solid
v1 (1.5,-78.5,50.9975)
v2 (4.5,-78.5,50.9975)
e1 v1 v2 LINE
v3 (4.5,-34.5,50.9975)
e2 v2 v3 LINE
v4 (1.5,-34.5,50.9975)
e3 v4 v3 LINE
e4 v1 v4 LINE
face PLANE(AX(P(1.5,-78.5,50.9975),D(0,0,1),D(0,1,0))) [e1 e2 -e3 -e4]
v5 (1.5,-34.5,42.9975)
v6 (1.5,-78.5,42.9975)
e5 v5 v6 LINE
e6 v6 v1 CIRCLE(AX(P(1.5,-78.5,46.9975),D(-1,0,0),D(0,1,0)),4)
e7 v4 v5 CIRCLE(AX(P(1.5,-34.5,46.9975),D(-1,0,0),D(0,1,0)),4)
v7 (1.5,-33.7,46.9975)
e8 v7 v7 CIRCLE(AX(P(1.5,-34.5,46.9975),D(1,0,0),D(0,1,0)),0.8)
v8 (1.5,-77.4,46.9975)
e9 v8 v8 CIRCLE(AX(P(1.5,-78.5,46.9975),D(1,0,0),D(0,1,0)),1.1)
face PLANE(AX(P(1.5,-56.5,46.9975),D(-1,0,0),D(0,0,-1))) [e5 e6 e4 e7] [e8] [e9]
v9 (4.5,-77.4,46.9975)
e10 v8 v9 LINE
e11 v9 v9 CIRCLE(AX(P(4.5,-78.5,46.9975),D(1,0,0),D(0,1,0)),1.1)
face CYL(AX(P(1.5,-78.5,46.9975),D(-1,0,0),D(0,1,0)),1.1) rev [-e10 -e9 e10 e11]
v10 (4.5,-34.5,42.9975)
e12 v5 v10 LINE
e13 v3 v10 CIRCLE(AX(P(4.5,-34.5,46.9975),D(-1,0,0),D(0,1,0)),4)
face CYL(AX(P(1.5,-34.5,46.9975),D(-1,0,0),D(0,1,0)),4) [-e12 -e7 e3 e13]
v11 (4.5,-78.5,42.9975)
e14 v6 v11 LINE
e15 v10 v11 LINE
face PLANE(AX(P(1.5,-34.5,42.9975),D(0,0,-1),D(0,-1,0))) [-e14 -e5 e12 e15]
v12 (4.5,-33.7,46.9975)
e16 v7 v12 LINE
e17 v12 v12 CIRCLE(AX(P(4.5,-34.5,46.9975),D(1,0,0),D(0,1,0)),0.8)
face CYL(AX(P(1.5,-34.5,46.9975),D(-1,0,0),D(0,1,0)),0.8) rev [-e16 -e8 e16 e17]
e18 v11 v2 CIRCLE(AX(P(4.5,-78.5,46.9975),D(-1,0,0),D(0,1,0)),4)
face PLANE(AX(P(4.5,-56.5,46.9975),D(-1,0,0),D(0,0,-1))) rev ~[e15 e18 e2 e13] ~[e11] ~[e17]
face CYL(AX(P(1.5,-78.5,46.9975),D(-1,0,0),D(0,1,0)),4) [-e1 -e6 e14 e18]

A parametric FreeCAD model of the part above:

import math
import FreeCAD as App
import Part
import Sketcher

V = App.Vector
Q = App.Units.Quantity

doc = App.newDocument("Part")
body = doc.addObject("PartDesign::Body", "Body")

# Sketch on YZ plane
sketch1 = body.newObject("Sketcher::SketchObject", "Sketch")
sketch1.AttachmentSupport = (doc.getObject("YZ_Plane"), [""])
sketch1.MapMode = "FlatFace"
sketch1.AttachmentOffset = App.Placement(V(0, 0, 1.5), App.Rotation())
sketch1.addGeometry(Part.LineSegment(V(-78.5, 42.9975, 0), V(-34.5, 42.9975, 0)), False)
sketch1.addGeometry(Part.ArcOfCircle(Part.Circle(V(-34.5, 46.9975, 0), V(0, 0, 1), 4), math.radians(-90), math.radians(90)), False)
sketch1.addGeometry(Part.LineSegment(V(-34.5, 50.9975, 0), V(-78.5, 50.9975, 0)), False)
sketch1.addGeometry(Part.ArcOfCircle(Part.Circle(V(-78.5, 46.9975, 0), V(0, 0, 1), 4), math.radians(90), math.radians(270)), False)
sketch1.addGeometry(Part.Circle(V(-78.5, 46.9975, 0), V(0, 0, 1), 1.1), False)
sketch1.addGeometry(Part.Circle(V(-34.5, 46.9975, 0), V(0, 0, 1), 0.8), False)
sketch1.addConstraint(Sketcher.Constraint("Tangent", 0, 2, 1, 1))
sketch1.addConstraint(Sketcher.Constraint("Tangent", 1, 2, 2, 1))
sketch1.addConstraint(Sketcher.Constraint("Tangent", 2, 2, 3, 1))
sketch1.addConstraint(Sketcher.Constraint("Tangent", 3, 2, 0, 1))
sketch1.addConstraint(Sketcher.Constraint("Horizontal", 0))
sketch1.addConstraint(Sketcher.Constraint("Horizontal", 2))
sketch1.addConstraint(Sketcher.Constraint("Coincident", 4, 3, 3, 3))
sketch1.addConstraint(Sketcher.Constraint("Coincident", 5, 3, 1, 3))
sketch1.addConstraint(Sketcher.Constraint("Radius", 1, Q("4 mm")))
sketch1.addConstraint(Sketcher.Constraint("Diameter", 4, Q("2.2 mm")))
sketch1.addConstraint(Sketcher.Constraint("Diameter", 5, Q("1.6 mm")))
sketch1.addConstraint(Sketcher.Constraint("DistanceX", 0, 1, 0, 2, Q("44 mm")))
sketch1.addConstraint(Sketcher.Constraint("DistanceX", 1, 3, -1, 1, Q("34.5 mm")))
sketch1.addConstraint(Sketcher.Constraint("DistanceY", -1, 1, 1, 3, Q("46.9975 mm")))
pad1 = body.newObject("PartDesign::Pad", "Pad")
pad1.Profile = sketch1
pad1.Length = 3

doc.recompute()
